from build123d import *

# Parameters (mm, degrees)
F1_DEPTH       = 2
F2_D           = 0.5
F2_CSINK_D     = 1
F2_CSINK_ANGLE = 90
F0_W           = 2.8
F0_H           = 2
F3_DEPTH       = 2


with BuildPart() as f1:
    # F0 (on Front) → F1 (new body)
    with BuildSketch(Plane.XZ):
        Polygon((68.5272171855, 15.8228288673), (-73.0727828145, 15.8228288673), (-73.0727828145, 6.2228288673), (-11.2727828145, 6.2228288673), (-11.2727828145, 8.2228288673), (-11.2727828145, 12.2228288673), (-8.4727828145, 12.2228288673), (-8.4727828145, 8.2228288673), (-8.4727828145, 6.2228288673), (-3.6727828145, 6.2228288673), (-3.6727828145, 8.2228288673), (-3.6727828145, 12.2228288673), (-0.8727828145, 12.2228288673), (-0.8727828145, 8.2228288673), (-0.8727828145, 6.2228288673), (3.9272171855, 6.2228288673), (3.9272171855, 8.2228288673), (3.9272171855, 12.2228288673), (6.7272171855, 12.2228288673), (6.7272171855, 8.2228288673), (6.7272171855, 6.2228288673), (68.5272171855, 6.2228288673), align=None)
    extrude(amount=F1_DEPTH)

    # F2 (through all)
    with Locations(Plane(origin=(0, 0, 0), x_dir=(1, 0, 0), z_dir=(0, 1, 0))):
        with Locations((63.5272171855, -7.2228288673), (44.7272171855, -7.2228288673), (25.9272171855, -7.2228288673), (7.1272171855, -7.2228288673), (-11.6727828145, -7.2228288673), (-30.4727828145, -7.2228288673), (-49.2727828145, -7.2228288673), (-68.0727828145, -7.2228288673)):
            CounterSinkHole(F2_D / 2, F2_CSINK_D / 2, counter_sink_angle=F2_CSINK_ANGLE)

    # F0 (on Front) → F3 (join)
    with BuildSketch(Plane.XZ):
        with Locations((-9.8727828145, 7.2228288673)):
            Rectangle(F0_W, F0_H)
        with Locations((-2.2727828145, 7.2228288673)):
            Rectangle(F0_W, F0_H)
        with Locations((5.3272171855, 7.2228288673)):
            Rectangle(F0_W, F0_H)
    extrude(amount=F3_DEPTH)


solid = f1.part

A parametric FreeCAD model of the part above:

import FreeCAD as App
import Part
import Sketcher
Q = App.Units.Quantity


def add_polygon(sketch, points):
    """Adds a closed chain of lines whose ends are joined by coincident constraints."""
    first, n = sketch.GeometryCount, len(points)
    for a, b in zip(points, points[1:] + points[:1]):
        sketch.addGeometry(Part.LineSegment(App.Vector(*a, 0), App.Vector(*b, 0)), False)
    for i in range(n):
        sketch.addConstraint(Sketcher.Constraint("Coincident", first + i, 2, first + (i + 1) % n, 1))

doc = App.newDocument("Part")
body = doc.addObject("PartDesign::Body", "Body")

# Sketch on XZ plane
sketch1 = body.newObject("Sketcher::SketchObject", "Sketch")
sketch1.AttachmentSupport = (doc.getObject("XZ_Plane"), [""])
sketch1.MapMode = "FlatFace"
add_polygon(sketch1, [(68.5, 15.8), (-73.1, 15.8), (-73.1, 6.2), (-11.3, 6.2), (-11.3, 12.2), (-8.5, 12.2), (-8.5, 6.2), (-3.7, 6.2), (-3.7, 12.2), (-0.9, 12.2), (-0.9, 6.2), (3.9, 6.2), (3.9, 12.2), (6.7, 12.2), (6.7, 6.2), (68.5, 6.2)])  # lines 0-15
sketch1.addConstraint([
    Sketcher.Constraint("Horizontal", 0),
    Sketcher.Constraint("Vertical", 1),
    Sketcher.Constraint("Horizontal", 2),
    Sketcher.Constraint("Vertical", 3),
    Sketcher.Constraint("Horizontal", 4),
    Sketcher.Constraint("Vertical", 5),
    Sketcher.Constraint("Horizontal", 6),
    Sketcher.Constraint("Vertical", 7),
    Sketcher.Constraint("Horizontal", 8),
    Sketcher.Constraint("Vertical", 9),
    Sketcher.Constraint("Horizontal", 10),
    Sketcher.Constraint("Vertical", 11),
    Sketcher.Constraint("Horizontal", 12),
    Sketcher.Constraint("Vertical", 13),
    Sketcher.Constraint("Horizontal", 14),
    Sketcher.Constraint("Vertical", 15),
    Sketcher.Constraint("Horizontal", 2, 2, 5, 2),
    Sketcher.Constraint("Horizontal", 4, 2, 7, 2),
    Sketcher.Constraint("Horizontal", 6, 2, 9, 2),
    Sketcher.Constraint("Horizontal", 8, 2, 11, 2),
    Sketcher.Constraint("Horizontal", 10, 2, 13, 2),
    Sketcher.Constraint("Equal", 4, 8),
    Sketcher.Constraint("Equal", 6, 10),
    Sketcher.Constraint("Equal", 8, 12),
    Sketcher.Constraint("Equal", 2, 14),
    Sketcher.Constraint("DistanceY", 3, 1, 3, 2, Q("6 mm")),
    Sketcher.Constraint("DistanceX", 0, 2, 0, 1, Q("141.6 mm")),
    Sketcher.Constraint("DistanceX", 2, 1, 2, 2, Q("61.8 mm")),
    Sketcher.Constraint("DistanceX", 4, 1, 4, 2, Q("2.8 mm")),
    Sketcher.Constraint("DistanceY", 1, 2, 1, 1, Q("9.6 mm")),
    Sketcher.Constraint("DistanceY", -1, 1, 0, 2, Q("15.822829 mm")),
    Sketcher.Constraint("DistanceX", 0, 2, -1, 1, Q("73.072783 mm")),
])
pad1 = body.newObject("PartDesign::Pad", "Pad")
pad1.Profile = sketch1
pad1.Length = 2

# Sketch on XZ plane
sketch2 = body.newObject("Sketcher::SketchObject", "Sketch001")
sketch2.AttachmentSupport = (doc.getObject("XZ_Plane"), [""])
sketch2.MapMode = "FlatFace"
sketch2.addGeometry([
    Part.Circle(App.Vector(63.53, 7.22, 0), App.Vector(0, 0, 1), 0.25),  # 0
    Part.Circle(App.Vector(44.73, 7.22, 0), App.Vector(0, 0, 1), 0.25),  # 1
    Part.Circle(App.Vector(25.93, 7.22, 0), App.Vector(0, 0, 1), 0.25),  # 2
    Part.Circle(App.Vector(7.13, 7.22, 0), App.Vector(0, 0, 1), 0.25),  # 3
    Part.Circle(App.Vector(-11.67, 7.22, 0), App.Vector(0, 0, 1), 0.25),  # 4
    Part.Circle(App.Vector(-30.47, 7.22, 0), App.Vector(0, 0, 1), 0.25),  # 5
    Part.Circle(App.Vector(-49.27, 7.22, 0), App.Vector(0, 0, 1), 0.25),  # 6
    Part.Circle(App.Vector(-68.07, 7.22, 0), App.Vector(0, 0, 1), 0.25),  # 7
], False)
sketch2.addConstraint([
    Sketcher.Constraint("Equal", 0, 1),
    Sketcher.Constraint("Equal", 1, 2),
    Sketcher.Constraint("Equal", 2, 3),
    Sketcher.Constraint("Equal", 3, 4),
    Sketcher.Constraint("Equal", 4, 5),
    Sketcher.Constraint("Equal", 5, 6),
    Sketcher.Constraint("Equal", 6, 7),
    Sketcher.Constraint("Horizontal", 0, 3, 1, 3),
    Sketcher.Constraint("Horizontal", 1, 3, 2, 3),
    Sketcher.Constraint("Horizontal", 2, 3, 3, 3),
    Sketcher.Constraint("Horizontal", 3, 3, 4, 3),
    Sketcher.Constraint("Horizontal", 4, 3, 5, 3),
    Sketcher.Constraint("Horizontal", 5, 3, 6, 3),
    Sketcher.Constraint("Horizontal", 6, 3, 7, 3),
    Sketcher.Constraint("Diameter", 0, Q("0.5 mm")),
    Sketcher.Constraint("DistanceX", 5, 3, 0, 3, Q("94 mm")),
    Sketcher.Constraint("DistanceX", 6, 3, 1, 3, Q("94 mm")),
    Sketcher.Constraint("DistanceX", 7, 3, 2, 3, Q("94 mm")),
    Sketcher.Constraint("DistanceX", 1, 3, 0, 3, Q("18.8 mm")),
    Sketcher.Constraint("DistanceX", 2, 3, 1, 3, Q("18.8 mm")),
    Sketcher.Constraint("DistanceX", 3, 3, 2, 3, Q("18.8 mm")),
    Sketcher.Constraint("DistanceX", 4, 3, 3, 3, Q("18.8 mm")),
    Sketcher.Constraint("DistanceY", -1, 1, 0, 3, Q("7.222829 mm")),
    Sketcher.Constraint("DistanceX", -1, 1, 0, 3, Q("63.527217 mm")),
])
doc.recompute()
hole = body.newObject("PartDesign::Hole", "Hole")
hole.Profile = sketch2
hole.ThreadType = "None"
hole.Diameter = 0.5
hole.DepthType = "ThroughAll"
hole.HoleCutType = "Countersink"
hole.HoleCutDiameter = 1
hole.HoleCutCountersinkAngle = 90
hole.Reversed = True

# Sketch on XZ plane
sketch3 = body.newObject("Sketcher::SketchObject", "Sketch002")
sketch3.AttachmentSupport = (doc.getObject("XZ_Plane"), [""])
sketch3.MapMode = "FlatFace"
add_polygon(sketch3, [(-11.3, 8.2), (-11.3, 6.2), (-8.5, 6.2), (-8.5, 8.2)])  # lines 0-3
add_polygon(sketch3, [(-3.7, 8.2), (-3.7, 6.2), (-0.9, 6.2), (-0.9, 8.2)])  # lines 4-7
add_polygon(sketch3, [(3.9, 8.2), (3.9, 6.2), (6.7, 6.2), (6.7, 8.2)])  # lines 8-11
sketch3.addConstraint([
    Sketcher.Constraint("Vertical", 0),
    Sketcher.Constraint("Horizontal", 1),
    Sketcher.Constraint("Vertical", 2),
    Sketcher.Constraint("Horizontal", 3),
    Sketcher.Constraint("Vertical", 4),
    Sketcher.Constraint("Horizontal", 5),
    Sketcher.Constraint("Vertical", 6),
    Sketcher.Constraint("Horizontal", 7),
    Sketcher.Constraint("Vertical", 8),
    Sketcher.Constraint("Horizontal", 9),
    Sketcher.Constraint("Vertical", 10),
    Sketcher.Constraint("Horizontal", 11),
    Sketcher.Constraint("Horizontal", 1, 2, 4, 2),
    Sketcher.Constraint("Horizontal", 3, 2, 6, 2),
    Sketcher.Constraint("Horizontal", 5, 2, 8, 2),
    Sketcher.Constraint("Horizontal", 7, 2, 10, 2),
    Sketcher.Constraint("Equal", 3, 5),
    Sketcher.Constraint("Equal", 7, 9),
    Sketcher.Constraint("DistanceY", 0, 2, 0, 1, Q("2 mm")),
    Sketcher.Constraint("DistanceX", 1, 1, 1, 2, Q("2.8 mm")),
    Sketcher.Constraint("DistanceX", 1, 2, 4, 2, Q("4.8 mm")),
    Sketcher.Constraint("DistanceX", 5, 2, 8, 2, Q("4.8 mm")),
    Sketcher.Constraint("DistanceY", -1, 1, 0, 2, Q("6.222829 mm")),
    Sketcher.Constraint("DistanceX", 0, 2, -1, 1, Q("11.272783 mm")),
])
pad2 = body.newObject("PartDesign::Pad", "Pad001")
pad2.Profile = sketch3
pad2.Length = 2

doc.recompute()
